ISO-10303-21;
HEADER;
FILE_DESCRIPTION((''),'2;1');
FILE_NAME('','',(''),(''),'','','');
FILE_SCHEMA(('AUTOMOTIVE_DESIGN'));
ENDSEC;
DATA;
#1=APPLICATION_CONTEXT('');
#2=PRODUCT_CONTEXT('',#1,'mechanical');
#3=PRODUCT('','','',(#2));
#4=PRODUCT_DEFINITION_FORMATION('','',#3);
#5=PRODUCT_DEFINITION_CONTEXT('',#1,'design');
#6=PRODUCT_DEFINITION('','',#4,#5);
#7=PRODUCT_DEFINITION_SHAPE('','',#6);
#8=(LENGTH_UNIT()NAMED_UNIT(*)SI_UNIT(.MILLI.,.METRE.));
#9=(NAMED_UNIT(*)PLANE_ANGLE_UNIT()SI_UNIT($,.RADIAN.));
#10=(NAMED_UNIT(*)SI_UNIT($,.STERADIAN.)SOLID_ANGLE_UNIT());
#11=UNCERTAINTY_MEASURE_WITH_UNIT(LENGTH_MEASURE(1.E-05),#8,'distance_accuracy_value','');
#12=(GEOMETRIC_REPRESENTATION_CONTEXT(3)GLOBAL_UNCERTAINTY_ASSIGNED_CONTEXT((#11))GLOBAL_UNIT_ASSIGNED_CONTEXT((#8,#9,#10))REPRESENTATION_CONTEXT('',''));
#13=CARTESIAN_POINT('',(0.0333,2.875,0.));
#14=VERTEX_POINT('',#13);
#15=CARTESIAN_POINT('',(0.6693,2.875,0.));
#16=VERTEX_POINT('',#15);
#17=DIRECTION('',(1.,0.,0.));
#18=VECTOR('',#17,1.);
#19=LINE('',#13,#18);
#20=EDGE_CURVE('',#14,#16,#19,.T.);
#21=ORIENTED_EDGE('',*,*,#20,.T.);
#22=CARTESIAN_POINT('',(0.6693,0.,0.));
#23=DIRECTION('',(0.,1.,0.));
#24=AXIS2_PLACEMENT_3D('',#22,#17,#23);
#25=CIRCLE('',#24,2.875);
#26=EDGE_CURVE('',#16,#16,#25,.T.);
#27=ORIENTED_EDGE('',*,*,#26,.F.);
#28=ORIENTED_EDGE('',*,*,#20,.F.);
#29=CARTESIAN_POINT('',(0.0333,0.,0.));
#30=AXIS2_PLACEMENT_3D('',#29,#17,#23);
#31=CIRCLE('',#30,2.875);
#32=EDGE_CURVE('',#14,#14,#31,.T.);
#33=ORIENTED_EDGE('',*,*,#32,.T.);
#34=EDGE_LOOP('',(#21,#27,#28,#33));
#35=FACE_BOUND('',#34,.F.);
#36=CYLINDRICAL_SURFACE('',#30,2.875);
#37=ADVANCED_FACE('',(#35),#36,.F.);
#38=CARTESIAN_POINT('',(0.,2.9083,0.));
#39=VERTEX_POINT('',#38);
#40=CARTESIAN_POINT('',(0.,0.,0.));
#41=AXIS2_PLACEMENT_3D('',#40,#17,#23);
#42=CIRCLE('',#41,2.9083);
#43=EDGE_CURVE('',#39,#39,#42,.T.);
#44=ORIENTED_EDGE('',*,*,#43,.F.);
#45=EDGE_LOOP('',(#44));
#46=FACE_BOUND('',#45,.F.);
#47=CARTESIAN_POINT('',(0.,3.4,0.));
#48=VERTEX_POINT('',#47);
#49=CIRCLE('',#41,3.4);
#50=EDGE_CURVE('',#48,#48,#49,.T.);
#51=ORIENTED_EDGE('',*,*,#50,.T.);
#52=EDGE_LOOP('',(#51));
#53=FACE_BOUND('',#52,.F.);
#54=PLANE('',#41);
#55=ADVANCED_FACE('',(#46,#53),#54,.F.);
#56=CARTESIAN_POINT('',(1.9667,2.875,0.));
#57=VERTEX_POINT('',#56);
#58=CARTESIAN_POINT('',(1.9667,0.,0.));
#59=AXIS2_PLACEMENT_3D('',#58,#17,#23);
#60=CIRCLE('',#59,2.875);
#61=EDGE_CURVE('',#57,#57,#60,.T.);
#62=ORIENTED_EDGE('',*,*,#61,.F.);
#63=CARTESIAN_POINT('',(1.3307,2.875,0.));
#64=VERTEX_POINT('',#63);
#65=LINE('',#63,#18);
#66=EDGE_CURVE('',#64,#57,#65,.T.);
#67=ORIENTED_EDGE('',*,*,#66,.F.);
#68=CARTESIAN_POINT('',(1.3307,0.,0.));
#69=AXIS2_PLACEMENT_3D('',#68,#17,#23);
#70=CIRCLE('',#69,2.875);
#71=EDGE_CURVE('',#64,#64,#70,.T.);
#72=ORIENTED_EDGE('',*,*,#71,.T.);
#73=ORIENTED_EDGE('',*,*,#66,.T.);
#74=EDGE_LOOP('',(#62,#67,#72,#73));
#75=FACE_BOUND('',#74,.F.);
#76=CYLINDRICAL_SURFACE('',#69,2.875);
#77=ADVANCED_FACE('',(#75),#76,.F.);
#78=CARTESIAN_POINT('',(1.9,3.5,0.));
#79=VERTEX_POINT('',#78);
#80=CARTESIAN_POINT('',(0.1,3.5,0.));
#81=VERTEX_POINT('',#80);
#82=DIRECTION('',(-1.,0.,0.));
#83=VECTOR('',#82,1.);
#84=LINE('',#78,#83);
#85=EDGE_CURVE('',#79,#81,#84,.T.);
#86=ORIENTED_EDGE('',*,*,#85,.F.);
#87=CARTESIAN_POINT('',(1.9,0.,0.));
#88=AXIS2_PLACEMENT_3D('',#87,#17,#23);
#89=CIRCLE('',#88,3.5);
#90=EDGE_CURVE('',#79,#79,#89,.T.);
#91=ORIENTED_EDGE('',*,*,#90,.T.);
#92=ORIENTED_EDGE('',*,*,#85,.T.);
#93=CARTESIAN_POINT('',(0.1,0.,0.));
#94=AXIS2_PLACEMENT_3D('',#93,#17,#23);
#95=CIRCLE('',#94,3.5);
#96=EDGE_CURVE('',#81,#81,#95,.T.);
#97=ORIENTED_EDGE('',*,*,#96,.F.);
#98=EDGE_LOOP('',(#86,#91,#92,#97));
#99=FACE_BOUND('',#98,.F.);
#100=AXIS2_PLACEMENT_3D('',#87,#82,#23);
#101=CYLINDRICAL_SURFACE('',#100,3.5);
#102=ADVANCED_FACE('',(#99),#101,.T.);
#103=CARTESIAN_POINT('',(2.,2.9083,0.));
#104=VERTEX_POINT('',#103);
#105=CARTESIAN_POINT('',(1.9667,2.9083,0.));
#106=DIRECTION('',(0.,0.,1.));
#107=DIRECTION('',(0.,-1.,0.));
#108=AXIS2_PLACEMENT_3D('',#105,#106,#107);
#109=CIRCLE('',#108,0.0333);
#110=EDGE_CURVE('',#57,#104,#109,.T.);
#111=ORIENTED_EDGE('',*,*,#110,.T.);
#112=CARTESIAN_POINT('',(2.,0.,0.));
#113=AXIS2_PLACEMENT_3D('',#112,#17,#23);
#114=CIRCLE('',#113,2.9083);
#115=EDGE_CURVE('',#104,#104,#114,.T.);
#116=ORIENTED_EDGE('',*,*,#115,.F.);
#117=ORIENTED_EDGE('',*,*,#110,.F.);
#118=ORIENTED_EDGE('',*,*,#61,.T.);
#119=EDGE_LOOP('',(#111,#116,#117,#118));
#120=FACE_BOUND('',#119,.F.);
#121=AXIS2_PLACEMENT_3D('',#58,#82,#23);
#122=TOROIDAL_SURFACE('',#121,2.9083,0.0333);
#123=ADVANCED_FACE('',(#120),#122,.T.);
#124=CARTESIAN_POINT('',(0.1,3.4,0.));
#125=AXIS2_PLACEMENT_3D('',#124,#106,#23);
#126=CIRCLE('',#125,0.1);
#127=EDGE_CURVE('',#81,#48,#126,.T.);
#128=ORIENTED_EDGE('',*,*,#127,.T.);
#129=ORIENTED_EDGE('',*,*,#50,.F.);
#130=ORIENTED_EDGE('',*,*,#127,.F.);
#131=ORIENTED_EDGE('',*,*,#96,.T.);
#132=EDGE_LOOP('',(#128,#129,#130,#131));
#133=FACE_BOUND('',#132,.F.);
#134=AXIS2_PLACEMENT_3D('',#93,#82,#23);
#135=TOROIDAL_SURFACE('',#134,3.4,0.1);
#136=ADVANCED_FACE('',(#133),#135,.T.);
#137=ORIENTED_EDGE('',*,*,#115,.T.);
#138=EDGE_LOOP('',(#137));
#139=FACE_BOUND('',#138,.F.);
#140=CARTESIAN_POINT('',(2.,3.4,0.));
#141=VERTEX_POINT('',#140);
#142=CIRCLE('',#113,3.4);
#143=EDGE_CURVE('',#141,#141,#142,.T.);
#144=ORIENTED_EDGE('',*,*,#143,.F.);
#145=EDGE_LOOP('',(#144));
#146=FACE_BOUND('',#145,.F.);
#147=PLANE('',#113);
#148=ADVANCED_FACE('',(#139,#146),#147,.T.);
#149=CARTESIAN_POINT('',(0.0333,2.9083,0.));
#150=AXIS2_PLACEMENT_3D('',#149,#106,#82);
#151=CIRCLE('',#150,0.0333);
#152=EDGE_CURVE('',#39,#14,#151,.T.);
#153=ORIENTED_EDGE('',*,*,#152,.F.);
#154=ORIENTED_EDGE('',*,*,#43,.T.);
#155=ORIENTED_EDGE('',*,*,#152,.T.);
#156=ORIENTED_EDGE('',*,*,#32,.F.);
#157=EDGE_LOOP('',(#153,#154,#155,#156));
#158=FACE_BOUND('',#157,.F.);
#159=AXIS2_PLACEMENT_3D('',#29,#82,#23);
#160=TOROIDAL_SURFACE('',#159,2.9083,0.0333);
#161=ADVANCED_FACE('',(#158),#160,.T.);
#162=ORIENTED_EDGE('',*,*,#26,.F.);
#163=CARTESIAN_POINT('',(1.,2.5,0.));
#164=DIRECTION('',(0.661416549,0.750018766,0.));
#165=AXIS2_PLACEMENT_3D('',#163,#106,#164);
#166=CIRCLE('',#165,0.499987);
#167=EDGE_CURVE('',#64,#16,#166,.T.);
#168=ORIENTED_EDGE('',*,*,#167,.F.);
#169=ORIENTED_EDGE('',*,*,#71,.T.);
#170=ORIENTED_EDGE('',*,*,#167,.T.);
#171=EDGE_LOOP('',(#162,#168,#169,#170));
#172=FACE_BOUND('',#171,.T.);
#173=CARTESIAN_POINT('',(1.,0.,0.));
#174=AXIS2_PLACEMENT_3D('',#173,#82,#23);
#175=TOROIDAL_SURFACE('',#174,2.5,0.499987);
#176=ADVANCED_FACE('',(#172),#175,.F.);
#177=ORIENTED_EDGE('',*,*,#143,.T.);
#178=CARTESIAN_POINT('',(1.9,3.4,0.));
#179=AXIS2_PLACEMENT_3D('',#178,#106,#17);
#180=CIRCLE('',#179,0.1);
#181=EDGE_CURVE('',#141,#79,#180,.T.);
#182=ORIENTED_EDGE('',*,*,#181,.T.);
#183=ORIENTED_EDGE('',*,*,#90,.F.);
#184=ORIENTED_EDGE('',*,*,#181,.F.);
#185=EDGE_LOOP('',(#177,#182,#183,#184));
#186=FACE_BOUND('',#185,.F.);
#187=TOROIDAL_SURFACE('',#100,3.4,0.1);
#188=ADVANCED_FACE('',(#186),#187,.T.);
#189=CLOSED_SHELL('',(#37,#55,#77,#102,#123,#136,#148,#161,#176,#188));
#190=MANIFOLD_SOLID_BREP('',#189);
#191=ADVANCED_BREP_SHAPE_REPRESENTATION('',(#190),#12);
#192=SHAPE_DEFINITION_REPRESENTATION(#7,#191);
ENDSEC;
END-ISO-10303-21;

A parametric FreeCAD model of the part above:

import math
import FreeCAD as App
import Part
import Sketcher
from FreeCAD import Vector

doc = App.newDocument("Part")
body = doc.addObject("PartDesign::Body", "Body")

# Sketch on XY plane
sketch1 = doc.addObject("Sketcher::SketchObject", "Sketch")
body.addObject(sketch1)
sketch1.AttachmentSupport = (doc.XY_Plane, [""])
sketch1.MapMode = "FlatFace"
sketch1.addGeometry(Part.LineSegment(Vector(0, 3.4, 0), Vector(0, 2.908, 0)), False)
sketch1.addGeometry(Part.ArcOfCircle(Part.Circle(Vector(0.033, 2.908, 0), Vector(0, 0, 1), 0.033), math.radians(180), math.radians(270)), False)
sketch1.addGeometry(Part.LineSegment(Vector(0.033, 2.875, 0), Vector(0.669, 2.875, 0)), False)
sketch1.addGeometry(Part.ArcOfCircle(Part.Circle(Vector(1, 2.5, 0), Vector(0, 0, 1), 0.5), math.radians(49), math.radians(131)), False)
sketch1.addGeometry(Part.LineSegment(Vector(1.331, 2.875, 0), Vector(1.967, 2.875, 0)), False)
sketch1.addGeometry(Part.ArcOfCircle(Part.Circle(Vector(1.967, 2.908, 0), Vector(0, 0, 1), 0.033), math.radians(-90), math.radians(0)), False)
sketch1.addGeometry(Part.LineSegment(Vector(2, 2.908, 0), Vector(2, 3.4, 0)), False)
sketch1.addGeometry(Part.ArcOfCircle(Part.Circle(Vector(1.9, 3.4, 0), Vector(0, 0, 1), 0.1), math.radians(0), math.radians(90)), False)
sketch1.addGeometry(Part.LineSegment(Vector(1.9, 3.5, 0), Vector(0.1, 3.5, 0)), False)
sketch1.addGeometry(Part.ArcOfCircle(Part.Circle(Vector(0.1, 3.4, 0), Vector(0, 0, 1), 0.1), math.radians(90), math.radians(180)), False)
sketch1.addConstraint(Sketcher.Constraint("Tangent", 0, 2, 1, 1))
sketch1.addConstraint(Sketcher.Constraint("Tangent", 1, 2, 2, 1))
sketch1.addConstraint(Sketcher.Constraint("Coincident", 2, 2, 3, 2))
sketch1.addConstraint(Sketcher.Constraint("Coincident", 3, 1, 4, 1))
sketch1.addConstraint(Sketcher.Constraint("Tangent", 4, 2, 5, 1))
sketch1.addConstraint(Sketcher.Constraint("Tangent", 5, 2, 6, 1))
sketch1.addConstraint(Sketcher.Constraint("Tangent", 6, 2, 7, 1))
sketch1.addConstraint(Sketcher.Constraint("Tangent", 7, 2, 8, 1))
sketch1.addConstraint(Sketcher.Constraint("Tangent", 8, 2, 9, 1))
sketch1.addConstraint(Sketcher.Constraint("Tangent", 9, 2, 0, 1))
sketch1.addConstraint(Sketcher.Constraint("Vertical", 0))
sketch1.addConstraint(Sketcher.Constraint("Horizontal", 2))
sketch1.addConstraint(Sketcher.Constraint("Horizontal", 4))
sketch1.addConstraint(Sketcher.Constraint("Vertical", 6))
sketch1.addConstraint(Sketcher.Constraint("Horizontal", 8))
sketch1.addConstraint(Sketcher.Constraint("Equal", 1, 5))
sketch1.addConstraint(Sketcher.Constraint("Equal", 7, 9))
sketch1.addConstraint(Sketcher.Constraint("PointOnObject", 0, 2, -2))
sketch1.addConstraint(Sketcher.Constraint("Horizontal", 1, 3, 5, 3))
sketch1.addConstraint(Sketcher.Constraint("Equal", 2, 4))
sketch1.addConstraint(Sketcher.Constraint("Radius", 3, 0.5))
sketch1.addConstraint(Sketcher.Constraint("Radius", 7, 0.1))
sketch1.addConstraint(Sketcher.Constraint("DistanceX", 8, 2, 8, 1, 1.8))
sketch1.addConstraint(Sketcher.Constraint("DistanceY", -1, 1, 3, 3, 2.5))
sketch1.addConstraint(Sketcher.Constraint("DistanceY", -1, 1, 7, 3, 3.4))
sketch1.addConstraint(Sketcher.Constraint("Radius", 1, 0.0333))
sketch1.addConstraint(Sketcher.Constraint("DistanceX", 2, 1, 2, 2, 0.636))
revolution = doc.addObject("PartDesign::Revolution", "Revolution")
body.addObject(revolution)
revolution.Profile = sketch1
revolution.ReferenceAxis = (sketch1, ["H_Axis"])
revolution.Angle = 360

doc.recompute()
